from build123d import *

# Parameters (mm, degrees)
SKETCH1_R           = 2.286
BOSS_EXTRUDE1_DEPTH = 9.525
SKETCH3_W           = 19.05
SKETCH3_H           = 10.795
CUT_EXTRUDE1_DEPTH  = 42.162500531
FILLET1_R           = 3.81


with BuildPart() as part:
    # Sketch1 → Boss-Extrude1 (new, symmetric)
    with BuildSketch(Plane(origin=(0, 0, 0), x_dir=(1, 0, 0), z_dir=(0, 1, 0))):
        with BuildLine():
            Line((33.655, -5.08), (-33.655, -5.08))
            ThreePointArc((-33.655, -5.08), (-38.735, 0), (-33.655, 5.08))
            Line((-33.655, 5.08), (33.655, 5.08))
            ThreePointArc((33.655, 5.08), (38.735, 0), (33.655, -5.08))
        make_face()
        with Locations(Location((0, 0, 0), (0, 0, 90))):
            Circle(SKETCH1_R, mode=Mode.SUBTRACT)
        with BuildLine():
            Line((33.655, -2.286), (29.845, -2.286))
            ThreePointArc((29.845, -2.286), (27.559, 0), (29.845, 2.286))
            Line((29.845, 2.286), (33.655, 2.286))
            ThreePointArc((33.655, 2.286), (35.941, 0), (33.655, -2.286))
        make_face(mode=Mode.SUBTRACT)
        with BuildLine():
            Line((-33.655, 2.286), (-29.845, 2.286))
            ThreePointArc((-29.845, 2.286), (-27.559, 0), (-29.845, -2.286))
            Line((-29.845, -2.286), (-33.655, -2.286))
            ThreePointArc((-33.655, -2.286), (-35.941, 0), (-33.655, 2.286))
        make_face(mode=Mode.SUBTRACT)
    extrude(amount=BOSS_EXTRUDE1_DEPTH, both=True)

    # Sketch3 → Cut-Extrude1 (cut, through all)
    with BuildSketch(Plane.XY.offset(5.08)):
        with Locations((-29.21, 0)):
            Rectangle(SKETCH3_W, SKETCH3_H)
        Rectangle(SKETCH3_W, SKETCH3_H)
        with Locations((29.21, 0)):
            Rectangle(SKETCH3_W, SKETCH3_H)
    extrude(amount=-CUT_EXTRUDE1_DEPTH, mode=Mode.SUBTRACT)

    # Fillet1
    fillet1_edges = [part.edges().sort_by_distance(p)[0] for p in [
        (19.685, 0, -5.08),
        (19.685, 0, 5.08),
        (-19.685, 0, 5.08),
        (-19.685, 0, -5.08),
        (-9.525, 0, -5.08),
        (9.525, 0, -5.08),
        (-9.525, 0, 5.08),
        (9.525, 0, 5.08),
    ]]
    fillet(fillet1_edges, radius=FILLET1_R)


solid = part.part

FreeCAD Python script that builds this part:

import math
import FreeCAD as App
import Part
import Sketcher

V = App.Vector
Q = App.Units.Quantity


def edges_at(feature, points):
    """Names of the edges that pass closest to the given points."""
    edges = feature.Shape.Edges
    near = lambda p: min(range(len(edges)), key=lambda i: edges[i].distToShape(Part.Vertex(*p))[0])
    return sorted({f"Edge{near(p) + 1}" for p in points})

doc = App.newDocument("Part")
params = doc.addObject("Spreadsheet::Sheet", "Params")
for row, (alias, value) in enumerate([
    ("sketch1_radius", "0.2 in"),
    ("sketch1_diameter", "0.18 in"),
    ("sketch1_width", "2.65 in"),
    ("sketch1_width2", "0.15 in"),
    ("pad1_length", "0.75 in"),
    ("sketch2_width", "0.75 in"),
    ("sketch2_height", "0.425 in"),
    ("fillet_radius", "0.15 in"),
], start=1):
    params.set(f"A{row}", alias)
    params.set(f"B{row}", "=" + value)
    params.setAlias(f"B{row}", alias)

body = doc.addObject("PartDesign::Body", "Body")

sketch1 = body.newObject("Sketcher::SketchObject", "Sketch")
sketch1.AttachmentSupport = (doc.getObject("XZ_Plane"), [""])
sketch1.MapMode = "FlatFace"
sketch1.addGeometry([
    Part.LineSegment(V(-33.7, 5.1, 0), V(33.7, 5.1, 0)),
    Part.ArcOfCircle(Part.Circle(V(33.7, 0, 0), V(0, 0, 1), 5.1), math.radians(-90), math.radians(90)),
    Part.LineSegment(V(33.7, -5.1, 0), V(-33.7, -5.1, 0)),
    Part.ArcOfCircle(Part.Circle(V(-33.7, 0, 0), V(0, 0, 1), 5.1), math.radians(90), math.radians(270)),
    Part.LineSegment(V(33.7, 2.3, 0), V(29.8, 2.3, 0)),
    Part.ArcOfCircle(Part.Circle(V(29.8, 0, 0), V(0, 0, 1), 2.3), math.radians(90), math.radians(270)),
    Part.LineSegment(V(29.8, -2.3, 0), V(33.7, -2.3, 0)),
    Part.ArcOfCircle(Part.Circle(V(33.7, 0, 0), V(0, 0, 1), 2.3), math.radians(-90), math.radians(90)),
    Part.Circle(V(0, 0, 0), V(0, 0, 1), 2.3),
    Part.LineSegment(V(-33.7, -2.3, 0), V(-29.8, -2.3, 0)),
    Part.ArcOfCircle(Part.Circle(V(-29.8, 0, 0), V(0, 0, 1), 2.3), math.radians(-90), math.radians(90)),
    Part.LineSegment(V(-29.8, 2.3, 0), V(-33.7, 2.3, 0)),
    Part.ArcOfCircle(Part.Circle(V(-33.7, 0, 0), V(0, 0, 1), 2.3), math.radians(90), math.radians(270)),
], False)
sketch1.addConstraint([
    Sketcher.Constraint("Tangent", 0, 2, 1, 2),
    Sketcher.Constraint("Tangent", 1, 1, 2, 1),
    Sketcher.Constraint("Tangent", 2, 2, 3, 2),
    Sketcher.Constraint("Tangent", 3, 1, 0, 1),
    Sketcher.Constraint("Tangent", 4, 2, 5, 1),
    Sketcher.Constraint("Tangent", 5, 2, 6, 1),
    Sketcher.Constraint("Tangent", 6, 2, 7, 1),
    Sketcher.Constraint("Tangent", 7, 2, 4, 1),
    Sketcher.Constraint("Tangent", 9, 2, 10, 1),
    Sketcher.Constraint("Tangent", 10, 2, 11, 1),
    Sketcher.Constraint("Tangent", 11, 2, 12, 1),
    Sketcher.Constraint("Tangent", 12, 2, 9, 1),
    Sketcher.Constraint("Horizontal", 0),
    Sketcher.Constraint("Horizontal", 2),
    Sketcher.Constraint("Horizontal", 4),
    Sketcher.Constraint("Horizontal", 6),
    Sketcher.Constraint("Horizontal", 9),
    Sketcher.Constraint("Horizontal", 11),
    Sketcher.Constraint("Coincident", 8, 3, -1, 1),
    Sketcher.Constraint("Coincident", 7, 3, 1, 3),
    Sketcher.Constraint("Coincident", 12, 3, 3, 3),
    Sketcher.Constraint("Equal", 7, 8),
    Sketcher.Constraint("Equal", 8, 10),
    Sketcher.Constraint("Symmetric", 1, 3, 3, 3, -1, 1),
    Sketcher.Constraint("Equal", 6, 9),
    Sketcher.Constraint("Radius", 1, Q("0.2 in")),
    Sketcher.Constraint("Diameter", 8, Q("0.18 in")),
    Sketcher.Constraint("DistanceX", 0, 1, 0, 2, Q("2.65 in")),
    Sketcher.Constraint("DistanceX", 4, 2, 4, 1, Q("0.15 in")),
])
sketch1.setExpression("Constraints[25]", "Params.sketch1_radius")
sketch1.setExpression("Constraints[26]", "Params.sketch1_diameter")
sketch1.setExpression("Constraints[27]", "Params.sketch1_width")
sketch1.setExpression("Constraints[28]", "Params.sketch1_width2")
pad1 = body.newObject("PartDesign::Pad", "Pad")
pad1.Profile = sketch1
pad1.setExpression("Length", "Params.pad1_length")
pad1.Midplane = True

sketch2 = body.newObject("Sketcher::SketchObject", "Sketch001")
sketch2.AttachmentSupport = (doc.getObject("XY_Plane"), [""])
sketch2.MapMode = "FlatFace"
sketch2.AttachmentOffset = App.Placement(V(0, 0, 0.2 * 25.4), App.Rotation())
sketch2.addGeometry([
    Part.LineSegment(V(-39, 5, 0), V(-39, -5, 0)),
    Part.LineSegment(V(-39, -5, 0), V(-20, -5, 0)),
    Part.LineSegment(V(-20, -5, 0), V(-20, 5, 0)),
    Part.LineSegment(V(-20, 5, 0), V(-39, 5, 0)),
    Part.LineSegment(V(-10, 5, 0), V(-10, -5, 0)),
    Part.LineSegment(V(-10, -5, 0), V(10, -5, 0)),
    Part.LineSegment(V(10, -5, 0), V(10, 5, 0)),
    Part.LineSegment(V(10, 5, 0), V(-10, 5, 0)),
    Part.LineSegment(V(20, 5, 0), V(20, -5, 0)),
    Part.LineSegment(V(20, -5, 0), V(39, -5, 0)),
    Part.LineSegment(V(39, -5, 0), V(39, 5, 0)),
    Part.LineSegment(V(39, 5, 0), V(20, 5, 0)),
], False)
sketch2.addConstraint([
    Sketcher.Constraint("Coincident", 0, 2, 1, 1),
    Sketcher.Constraint("Coincident", 1, 2, 2, 1),
    Sketcher.Constraint("Coincident", 2, 2, 3, 1),
    Sketcher.Constraint("Coincident", 3, 2, 0, 1),
    Sketcher.Constraint("Coincident", 4, 2, 5, 1),
    Sketcher.Constraint("Coincident", 5, 2, 6, 1),
    Sketcher.Constraint("Coincident", 6, 2, 7, 1),
    Sketcher.Constraint("Coincident", 7, 2, 4, 1),
    Sketcher.Constraint("Coincident", 8, 2, 9, 1),
    Sketcher.Constraint("Coincident", 9, 2, 10, 1),
    Sketcher.Constraint("Coincident", 10, 2, 11, 1),
    Sketcher.Constraint("Coincident", 11, 2, 8, 1),
    Sketcher.Constraint("Vertical", 0),
    Sketcher.Constraint("Horizontal", 1),
    Sketcher.Constraint("Vertical", 2),
    Sketcher.Constraint("Horizontal", 3),
    Sketcher.Constraint("Vertical", 4),
    Sketcher.Constraint("Horizontal", 5),
    Sketcher.Constraint("Vertical", 6),
    Sketcher.Constraint("Horizontal", 7),
    Sketcher.Constraint("Vertical", 8),
    Sketcher.Constraint("Horizontal", 9),
    Sketcher.Constraint("Vertical", 10),
    Sketcher.Constraint("Horizontal", 11),
    Sketcher.Constraint("Symmetric", 4, 2, 6, 2, -1, 1),
    Sketcher.Constraint("Symmetric", 2, 2, 8, 2, -1, 1),
    Sketcher.Constraint("Symmetric", 0, 2, 10, 2, -1, 1),
    Sketcher.Constraint("Horizontal", 1, 2, 4, 2),
    Sketcher.Constraint("Horizontal", 3, 2, 6, 2),
    Sketcher.Constraint("Equal", 3, 5),
    Sketcher.Constraint("DistanceX", 1, 1, 1, 2, Q("0.75 in")),
    Sketcher.Constraint("DistanceX", 1, 2, 4, 2, Q("0.4 in")),
    Sketcher.Constraint("DistanceY", 0, 2, 0, 1, Q("0.425 in")),
])
sketch2.setExpression("Constraints[30]", "Params.sketch2_width")
sketch2.setExpression("Constraints[32]", "Params.sketch2_height")
pocket1 = body.newObject("PartDesign::Pocket", "Pocket")
pocket1.Profile = sketch2
pocket1.Type = "ThroughAll"
doc.recompute()

fillet = body.newObject("PartDesign::Fillet", "Fillet")
fillet.Base = (pocket1, edges_at(pocket1, [
    (19.685, 0, -5.08),
    (19.685, 0, 5.08),
    (-19.685, 0, 5.08),
    (-19.685, 0, -5.08),
    (-9.525, 0, -5.08),
    (9.525, 0, -5.08),
    (-9.525, 0, 5.08),
    (9.525, 0, 5.08),
]))
fillet.setExpression("Radius", "Params.fillet_radius")

doc.recompute()
